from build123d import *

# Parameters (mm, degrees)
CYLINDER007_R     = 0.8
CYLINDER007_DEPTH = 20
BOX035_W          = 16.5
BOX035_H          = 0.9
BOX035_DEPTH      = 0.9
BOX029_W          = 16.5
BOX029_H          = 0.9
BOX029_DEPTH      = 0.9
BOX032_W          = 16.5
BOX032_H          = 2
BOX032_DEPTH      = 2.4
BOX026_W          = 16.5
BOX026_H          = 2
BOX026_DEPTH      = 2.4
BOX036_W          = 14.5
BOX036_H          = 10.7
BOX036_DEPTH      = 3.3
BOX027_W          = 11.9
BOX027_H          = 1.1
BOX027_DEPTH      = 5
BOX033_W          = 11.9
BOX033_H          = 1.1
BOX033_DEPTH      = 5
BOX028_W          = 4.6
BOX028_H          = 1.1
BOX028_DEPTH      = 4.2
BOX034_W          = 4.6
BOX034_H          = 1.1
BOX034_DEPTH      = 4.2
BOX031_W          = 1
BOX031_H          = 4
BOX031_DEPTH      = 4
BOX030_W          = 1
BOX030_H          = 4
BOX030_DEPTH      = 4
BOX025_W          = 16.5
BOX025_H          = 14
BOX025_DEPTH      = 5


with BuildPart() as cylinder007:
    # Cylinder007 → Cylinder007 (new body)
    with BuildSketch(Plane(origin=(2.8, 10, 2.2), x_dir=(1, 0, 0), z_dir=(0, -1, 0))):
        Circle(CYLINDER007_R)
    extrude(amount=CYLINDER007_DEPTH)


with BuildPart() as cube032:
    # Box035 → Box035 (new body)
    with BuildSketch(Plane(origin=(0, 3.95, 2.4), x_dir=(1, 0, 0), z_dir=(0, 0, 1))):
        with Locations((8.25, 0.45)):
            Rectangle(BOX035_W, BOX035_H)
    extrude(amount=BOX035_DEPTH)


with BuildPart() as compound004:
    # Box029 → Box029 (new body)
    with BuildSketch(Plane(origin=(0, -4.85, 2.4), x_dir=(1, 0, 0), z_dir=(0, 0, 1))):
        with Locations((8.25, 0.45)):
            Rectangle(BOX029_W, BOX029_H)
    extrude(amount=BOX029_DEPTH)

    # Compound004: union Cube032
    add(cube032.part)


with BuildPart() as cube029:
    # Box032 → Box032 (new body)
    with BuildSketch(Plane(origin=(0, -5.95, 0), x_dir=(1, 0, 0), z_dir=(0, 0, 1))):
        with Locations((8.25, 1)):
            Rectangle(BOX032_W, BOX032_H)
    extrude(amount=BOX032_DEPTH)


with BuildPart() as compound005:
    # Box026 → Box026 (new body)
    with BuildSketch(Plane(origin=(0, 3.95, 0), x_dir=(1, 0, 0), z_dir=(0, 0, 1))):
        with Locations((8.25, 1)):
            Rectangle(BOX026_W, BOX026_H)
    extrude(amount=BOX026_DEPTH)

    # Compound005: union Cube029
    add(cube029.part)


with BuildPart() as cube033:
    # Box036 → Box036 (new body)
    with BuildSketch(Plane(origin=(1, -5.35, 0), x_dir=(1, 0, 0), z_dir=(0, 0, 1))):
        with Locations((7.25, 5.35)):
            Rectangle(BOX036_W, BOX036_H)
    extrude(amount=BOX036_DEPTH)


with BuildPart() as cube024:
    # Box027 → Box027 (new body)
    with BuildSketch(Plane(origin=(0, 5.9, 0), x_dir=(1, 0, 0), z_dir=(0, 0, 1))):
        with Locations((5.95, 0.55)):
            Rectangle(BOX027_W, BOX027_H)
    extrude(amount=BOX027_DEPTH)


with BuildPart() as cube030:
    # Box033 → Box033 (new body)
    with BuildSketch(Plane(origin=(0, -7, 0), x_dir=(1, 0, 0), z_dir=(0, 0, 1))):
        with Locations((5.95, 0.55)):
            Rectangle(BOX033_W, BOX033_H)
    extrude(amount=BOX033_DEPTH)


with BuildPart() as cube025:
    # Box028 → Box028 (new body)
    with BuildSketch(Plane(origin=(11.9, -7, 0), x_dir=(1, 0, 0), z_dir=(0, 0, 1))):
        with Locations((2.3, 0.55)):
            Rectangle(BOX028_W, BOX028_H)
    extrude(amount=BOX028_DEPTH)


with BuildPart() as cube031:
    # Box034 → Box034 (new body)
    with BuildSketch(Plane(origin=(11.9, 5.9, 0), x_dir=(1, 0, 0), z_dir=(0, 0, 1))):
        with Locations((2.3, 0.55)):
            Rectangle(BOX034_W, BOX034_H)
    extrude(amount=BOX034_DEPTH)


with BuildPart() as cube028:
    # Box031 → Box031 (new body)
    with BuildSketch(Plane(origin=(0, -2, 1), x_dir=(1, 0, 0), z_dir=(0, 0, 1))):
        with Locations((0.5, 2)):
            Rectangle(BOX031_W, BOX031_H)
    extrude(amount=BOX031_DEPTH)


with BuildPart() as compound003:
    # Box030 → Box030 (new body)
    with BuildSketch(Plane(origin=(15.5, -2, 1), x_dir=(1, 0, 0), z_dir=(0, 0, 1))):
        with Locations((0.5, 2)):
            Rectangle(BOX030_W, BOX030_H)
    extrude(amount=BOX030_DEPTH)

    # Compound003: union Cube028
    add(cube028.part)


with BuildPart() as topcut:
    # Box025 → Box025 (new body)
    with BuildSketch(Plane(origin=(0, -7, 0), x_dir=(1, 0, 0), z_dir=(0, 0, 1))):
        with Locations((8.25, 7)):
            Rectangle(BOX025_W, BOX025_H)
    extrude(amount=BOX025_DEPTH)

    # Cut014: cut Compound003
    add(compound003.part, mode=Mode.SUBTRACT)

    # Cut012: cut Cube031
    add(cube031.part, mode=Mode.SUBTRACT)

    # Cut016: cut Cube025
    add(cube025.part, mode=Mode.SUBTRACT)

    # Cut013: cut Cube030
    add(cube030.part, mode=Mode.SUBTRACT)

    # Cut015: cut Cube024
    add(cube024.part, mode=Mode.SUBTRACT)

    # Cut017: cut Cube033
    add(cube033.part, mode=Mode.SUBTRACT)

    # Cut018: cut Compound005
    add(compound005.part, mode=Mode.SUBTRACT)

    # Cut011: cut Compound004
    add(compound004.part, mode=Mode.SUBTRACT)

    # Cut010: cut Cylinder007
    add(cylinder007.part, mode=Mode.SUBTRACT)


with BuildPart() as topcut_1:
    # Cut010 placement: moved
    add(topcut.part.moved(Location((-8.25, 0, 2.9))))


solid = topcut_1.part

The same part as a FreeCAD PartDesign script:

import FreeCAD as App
import Part
import Sketcher
from FreeCAD import Vector
Q = App.Units.Quantity

doc = App.newDocument("Part")
body = doc.addObject("PartDesign::Body", "Body")

# Sketch on XZ plane
sketch1 = body.newObject("Sketcher::SketchObject", "Sketch")
sketch1.AttachmentSupport = (doc.getObject("XZ_Plane"), [""])
sketch1.MapMode = "FlatFace"
sketch1.AttachmentOffset = App.Placement(Vector(0, 0, -10), App.Rotation())
sketch1.addGeometry(Part.Circle(Vector(2.8, 2.2, 0), Vector(0, 0, 1), 0.8), False)
sketch1.addConstraint(Sketcher.Constraint("Diameter", 0, Q("1.6 mm")))
sketch1.addConstraint(Sketcher.Constraint("DistanceX", -1, 1, 0, 3, Q("2.8 mm")))
sketch1.addConstraint(Sketcher.Constraint("DistanceY", -1, 1, 0, 3, Q("2.2 mm")))
pad1 = body.newObject("PartDesign::Pad", "Pad")
pad1.Profile = sketch1
pad1.Length = 20
body2 = doc.addObject("PartDesign::Body", "Body001")

# Sketch on XY plane
sketch2 = body2.newObject("Sketcher::SketchObject", "Sketch001")
sketch2.AttachmentSupport = (doc.getObject("XY_Plane001"), [""])
sketch2.MapMode = "FlatFace"
sketch2.AttachmentOffset = App.Placement(Vector(0, 0, 2.4), App.Rotation())
sketch2.addGeometry(Part.LineSegment(Vector(0, 4.85, 0), Vector(0, 3.95, 0)), False)
sketch2.addGeometry(Part.LineSegment(Vector(0, 3.95, 0), Vector(16.5, 3.95, 0)), False)
sketch2.addGeometry(Part.LineSegment(Vector(16.5, 3.95, 0), Vector(16.5, 4.85, 0)), False)
sketch2.addGeometry(Part.LineSegment(Vector(16.5, 4.85, 0), Vector(0, 4.85, 0)), False)
sketch2.addConstraint(Sketcher.Constraint("Coincident", 0, 2, 1, 1))
sketch2.addConstraint(Sketcher.Constraint("Coincident", 1, 2, 2, 1))
sketch2.addConstraint(Sketcher.Constraint("Coincident", 2, 2, 3, 1))
sketch2.addConstraint(Sketcher.Constraint("Coincident", 3, 2, 0, 1))
sketch2.addConstraint(Sketcher.Constraint("Vertical", 0))
sketch2.addConstraint(Sketcher.Constraint("Horizontal", 1))
sketch2.addConstraint(Sketcher.Constraint("Vertical", 2))
sketch2.addConstraint(Sketcher.Constraint("Horizontal", 3))
sketch2.addConstraint(Sketcher.Constraint("PointOnObject", 0, 2, -2))
sketch2.addConstraint(Sketcher.Constraint("DistanceX", 1, 1, 1, 2, Q("16.5 mm")))
sketch2.addConstraint(Sketcher.Constraint("DistanceY", 0, 2, 0, 1, Q("0.9 mm")))
sketch2.addConstraint(Sketcher.Constraint("DistanceY", -1, 1, 0, 2, Q("3.95 mm")))
pad2 = body2.newObject("PartDesign::Pad", "Pad001")
pad2.Profile = sketch2
pad2.Length = 0.9
body3 = doc.addObject("PartDesign::Body", "Body002")
body3.AllowCompound = True

# Sketch on XY plane
sketch3 = body3.newObject("Sketcher::SketchObject", "Sketch002")
sketch3.AttachmentSupport = (doc.getObject("XY_Plane002"), [""])
sketch3.MapMode = "FlatFace"
sketch3.AttachmentOffset = App.Placement(Vector(0, 0, 2.4), App.Rotation())
sketch3.addGeometry(Part.LineSegment(Vector(0, -3.95, 0), Vector(0, -4.85, 0)), False)
sketch3.addGeometry(Part.LineSegment(Vector(0, -4.85, 0), Vector(16.5, -4.85, 0)), False)
sketch3.addGeometry(Part.LineSegment(Vector(16.5, -4.85, 0), Vector(16.5, -3.95, 0)), False)
sketch3.addGeometry(Part.LineSegment(Vector(16.5, -3.95, 0), Vector(0, -3.95, 0)), False)
sketch3.addConstraint(Sketcher.Constraint("Coincident", 0, 2, 1, 1))
sketch3.addConstraint(Sketcher.Constraint("Coincident", 1, 2, 2, 1))
sketch3.addConstraint(Sketcher.Constraint("Coincident", 2, 2, 3, 1))
sketch3.addConstraint(Sketcher.Constraint("Coincident", 3, 2, 0, 1))
sketch3.addConstraint(Sketcher.Constraint("Vertical", 0))
sketch3.addConstraint(Sketcher.Constraint("Horizontal", 1))
sketch3.addConstraint(Sketcher.Constraint("Vertical", 2))
sketch3.addConstraint(Sketcher.Constraint("Horizontal", 3))
sketch3.addConstraint(Sketcher.Constraint("PointOnObject", 0, 2, -2))
sketch3.addConstraint(Sketcher.Constraint("DistanceX", 1, 1, 1, 2, Q("16.5 mm")))
sketch3.addConstraint(Sketcher.Constraint("DistanceY", 0, 2, 0, 1, Q("0.9 mm")))
sketch3.addConstraint(Sketcher.Constraint("DistanceY", 0, 2, -1, 1, Q("4.85 mm")))
pad3 = body3.newObject("PartDesign::Pad", "Pad002")
pad3.Profile = sketch3
pad3.Length = 0.9
doc.recompute()

boolean = body3.newObject("PartDesign::Boolean", "Boolean")
boolean.Type = "Fuse"
boolean.addObjects([body2])
body4 = doc.addObject("PartDesign::Body", "Body003")

# Sketch on XY plane
sketch4 = body4.newObject("Sketcher::SketchObject", "Sketch003")
sketch4.AttachmentSupport = (doc.getObject("XY_Plane003"), [""])
sketch4.MapMode = "FlatFace"
sketch4.addGeometry(Part.LineSegment(Vector(0, -3.95, 0), Vector(0, -5.95, 0)), False)
sketch4.addGeometry(Part.LineSegment(Vector(0, -5.95, 0), Vector(16.5, -5.95, 0)), False)
sketch4.addGeometry(Part.LineSegment(Vector(16.5, -5.95, 0), Vector(16.5, -3.95, 0)), False)
sketch4.addGeometry(Part.LineSegment(Vector(16.5, -3.95, 0), Vector(0, -3.95, 0)), False)
sketch4.addConstraint(Sketcher.Constraint("Coincident", 0, 2, 1, 1))
sketch4.addConstraint(Sketcher.Constraint("Coincident", 1, 2, 2, 1))
sketch4.addConstraint(Sketcher.Constraint("Coincident", 2, 2, 3, 1))
sketch4.addConstraint(Sketcher.Constraint("Coincident", 3, 2, 0, 1))
sketch4.addConstraint(Sketcher.Constraint("Vertical", 0))
sketch4.addConstraint(Sketcher.Constraint("Horizontal", 1))
sketch4.addConstraint(Sketcher.Constraint("Vertical", 2))
sketch4.addConstraint(Sketcher.Constraint("Horizontal", 3))
sketch4.addConstraint(Sketcher.Constraint("PointOnObject", 0, 2, -2))
sketch4.addConstraint(Sketcher.Constraint("DistanceY", 0, 2, 0, 1, Q("2 mm")))
sketch4.addConstraint(Sketcher.Constraint("DistanceX", 1, 1, 1, 2, Q("16.5 mm")))
sketch4.addConstraint(Sketcher.Constraint("DistanceY", 0, 2, -1, 1, Q("5.95 mm")))
pad4 = body4.newObject("PartDesign::Pad", "Pad003")
pad4.Profile = sketch4
pad4.Length = 2.4
body5 = doc.addObject("PartDesign::Body", "Body004")
body5.AllowCompound = True

# Sketch on XY plane
sketch5 = body5.newObject("Sketcher::SketchObject", "Sketch004")
sketch5.AttachmentSupport = (doc.getObject("XY_Plane004"), [""])
sketch5.MapMode = "FlatFace"
sketch5.addGeometry(Part.LineSegment(Vector(0, 5.95, 0), Vector(0, 3.95, 0)), False)
sketch5.addGeometry(Part.LineSegment(Vector(0, 3.95, 0), Vector(16.5, 3.95, 0)), False)
sketch5.addGeometry(Part.LineSegment(Vector(16.5, 3.95, 0), Vector(16.5, 5.95, 0)), False)
sketch5.addGeometry(Part.LineSegment(Vector(16.5, 5.95, 0), Vector(0, 5.95, 0)), False)
sketch5.addConstraint(Sketcher.Constraint("Coincident", 0, 2, 1, 1))
sketch5.addConstraint(Sketcher.Constraint("Coincident", 1, 2, 2, 1))
sketch5.addConstraint(Sketcher.Constraint("Coincident", 2, 2, 3, 1))
sketch5.addConstraint(Sketcher.Constraint("Coincident", 3, 2, 0, 1))
sketch5.addConstraint(Sketcher.Constraint("Vertical", 0))
sketch5.addConstraint(Sketcher.Constraint("Horizontal", 1))
sketch5.addConstraint(Sketcher.Constraint("Vertical", 2))
sketch5.addConstraint(Sketcher.Constraint("Horizontal", 3))
sketch5.addConstraint(Sketcher.Constraint("PointOnObject", 0, 2, -2))
sketch5.addConstraint(Sketcher.Constraint("DistanceY", 0, 2, 0, 1, Q("2 mm")))
sketch5.addConstraint(Sketcher.Constraint("DistanceX", 1, 1, 1, 2, Q("16.5 mm")))
sketch5.addConstraint(Sketcher.Constraint("DistanceY", -1, 1, 0, 2, Q("3.95 mm")))
pad5 = body5.newObject("PartDesign::Pad", "Pad004")
pad5.Profile = sketch5
pad5.Length = 2.4
doc.recompute()

boolean2 = body5.newObject("PartDesign::Boolean", "Boolean001")
boolean2.Type = "Fuse"
boolean2.addObjects([body4])
body6 = doc.addObject("PartDesign::Body", "Body005")

# Sketch on XY plane
sketch6 = body6.newObject("Sketcher::SketchObject", "Sketch005")
sketch6.AttachmentSupport = (doc.getObject("XY_Plane005"), [""])
sketch6.MapMode = "FlatFace"
sketch6.addGeometry(Part.LineSegment(Vector(1, 5.35, 0), Vector(1, -5.35, 0)), False)
sketch6.addGeometry(Part.LineSegment(Vector(1, -5.35, 0), Vector(15.5, -5.35, 0)), False)
sketch6.addGeometry(Part.LineSegment(Vector(15.5, -5.35, 0), Vector(15.5, 5.35, 0)), False)
sketch6.addGeometry(Part.LineSegment(Vector(15.5, 5.35, 0), Vector(1, 5.35, 0)), False)
sketch6.addConstraint(Sketcher.Constraint("Coincident", 0, 2, 1, 1))
sketch6.addConstraint(Sketcher.Constraint("Coincident", 1, 2, 2, 1))
sketch6.addConstraint(Sketcher.Constraint("Coincident", 2, 2, 3, 1))
sketch6.addConstraint(Sketcher.Constraint("Coincident", 3, 2, 0, 1))
sketch6.addConstraint(Sketcher.Constraint("Vertical", 0))
sketch6.addConstraint(Sketcher.Constraint("Horizontal", 1))
sketch6.addConstraint(Sketcher.Constraint("Vertical", 2))
sketch6.addConstraint(Sketcher.Constraint("Horizontal", 3))
sketch6.addConstraint(Sketcher.Constraint("DistanceX", 1, 1, 1, 2, Q("14.5 mm")))
sketch6.addConstraint(Sketcher.Constraint("DistanceY", 0, 2, 0, 1, Q("10.7 mm")))
sketch6.addConstraint(Sketcher.Constraint("DistanceX", -1, 1, 0, 2, Q("1 mm")))
sketch6.addConstraint(Sketcher.Constraint("DistanceY", 0, 2, -1, 1, Q("5.35 mm")))
pad6 = body6.newObject("PartDesign::Pad", "Pad005")
pad6.Profile = sketch6
pad6.Length = 3.3
body7 = doc.addObject("PartDesign::Body", "Body006")

# Sketch on XY plane
sketch7 = body7.newObject("Sketcher::SketchObject", "Sketch006")
sketch7.AttachmentSupport = (doc.getObject("XY_Plane006"), [""])
sketch7.MapMode = "FlatFace"
sketch7.addGeometry(Part.LineSegment(Vector(0, 7, 0), Vector(0, 5.9, 0)), False)
sketch7.addGeometry(Part.LineSegment(Vector(0, 5.9, 0), Vector(11.9, 5.9, 0)), False)
sketch7.addGeometry(Part.LineSegment(Vector(11.9, 5.9, 0), Vector(11.9, 7, 0)), False)
sketch7.addGeometry(Part.LineSegment(Vector(11.9, 7, 0), Vector(0, 7, 0)), False)
sketch7.addConstraint(Sketcher.Constraint("Coincident", 0, 2, 1, 1))
sketch7.addConstraint(Sketcher.Constraint("Coincident", 1, 2, 2, 1))
sketch7.addConstraint(Sketcher.Constraint("Coincident", 2, 2, 3, 1))
sketch7.addConstraint(Sketcher.Constraint("Coincident", 3, 2, 0, 1))
sketch7.addConstraint(Sketcher.Constraint("Vertical", 0))
sketch7.addConstraint(Sketcher.Constraint("Horizontal", 1))
sketch7.addConstraint(Sketcher.Constraint("Vertical", 2))
sketch7.addConstraint(Sketcher.Constraint("Horizontal", 3))
sketch7.addConstraint(Sketcher.Constraint("PointOnObject", 0, 2, -2))
sketch7.addConstraint(Sketcher.Constraint("DistanceX", 1, 1, 1, 2, Q("11.9 mm")))
sketch7.addConstraint(Sketcher.Constraint("DistanceY", 0, 2, 0, 1, Q("1.1 mm")))
sketch7.addConstraint(Sketcher.Constraint("DistanceY", -1, 1, 2, 2, Q("7 mm")))
pad7 = body7.newObject("PartDesign::Pad", "Pad006")
pad7.Profile = sketch7
pad7.Length = 5
body8 = doc.addObject("PartDesign::Body", "Body007")

# Sketch on XY plane
sketch8 = body8.newObject("Sketcher::SketchObject", "Sketch007")
sketch8.AttachmentSupport = (doc.getObject("XY_Plane007"), [""])
sketch8.MapMode = "FlatFace"
sketch8.addGeometry(Part.LineSegment(Vector(0, -5.9, 0), Vector(0, -7, 0)), False)
sketch8.addGeometry(Part.LineSegment(Vector(0, -7, 0), Vector(11.9, -7, 0)), False)
sketch8.addGeometry(Part.LineSegment(Vector(11.9, -7, 0), Vector(11.9, -5.9, 0)), False)
sketch8.addGeometry(Part.LineSegment(Vector(11.9, -5.9, 0), Vector(0, -5.9, 0)), False)
sketch8.addConstraint(Sketcher.Constraint("Coincident", 0, 2, 1, 1))
sketch8.addConstraint(Sketcher.Constraint("Coincident", 1, 2, 2, 1))
sketch8.addConstraint(Sketcher.Constraint("Coincident", 2, 2, 3, 1))
sketch8.addConstraint(Sketcher.Constraint("Coincident", 3, 2, 0, 1))
sketch8.addConstraint(Sketcher.Constraint("Vertical", 0))
sketch8.addConstraint(Sketcher.Constraint("Horizontal", 1))
sketch8.addConstraint(Sketcher.Constraint("Vertical", 2))
sketch8.addConstraint(Sketcher.Constraint("Horizontal", 3))
sketch8.addConstraint(Sketcher.Constraint("PointOnObject", 0, 2, -2))
sketch8.addConstraint(Sketcher.Constraint("DistanceX", 1, 1, 1, 2, Q("11.9 mm")))
sketch8.addConstraint(Sketcher.Constraint("DistanceY", 0, 2, 0, 1, Q("1.1 mm")))
sketch8.addConstraint(Sketcher.Constraint("DistanceY", 0, 2, -1, 1, Q("7 mm")))
pad8 = body8.newObject("PartDesign::Pad", "Pad007")
pad8.Profile = sketch8
pad8.Length = 5
body9 = doc.addObject("PartDesign::Body", "Body008")

# Sketch on XY plane
sketch9 = body9.newObject("Sketcher::SketchObject", "Sketch008")
sketch9.AttachmentSupport = (doc.getObject("XY_Plane008"), [""])
sketch9.MapMode = "FlatFace"
sketch9.addGeometry(Part.LineSegment(Vector(11.9, -5.9, 0), Vector(11.9, -7, 0)), False)
sketch9.addGeometry(Part.LineSegment(Vector(11.9, -7, 0), Vector(16.5, -7, 0)), False)
sketch9.addGeometry(Part.LineSegment(Vector(16.5, -7, 0), Vector(16.5, -5.9, 0)), False)
sketch9.addGeometry(Part.LineSegment(Vector(16.5, -5.9, 0), Vector(11.9, -5.9, 0)), False)
sketch9.addConstraint(Sketcher.Constraint("Coincident", 0, 2, 1, 1))
sketch9.addConstraint(Sketcher.Constraint("Coincident", 1, 2, 2, 1))
sketch9.addConstraint(Sketcher.Constraint("Coincident", 2, 2, 3, 1))
sketch9.addConstraint(Sketcher.Constraint("Coincident", 3, 2, 0, 1))
sketch9.addConstraint(Sketcher.Constraint("Vertical", 0))
sketch9.addConstraint(Sketcher.Constraint("Horizontal", 1))
sketch9.addConstraint(Sketcher.Constraint("Vertical", 2))
sketch9.addConstraint(Sketcher.Constraint("Horizontal", 3))
sketch9.addConstraint(Sketcher.Constraint("DistanceX", 1, 1, 1, 2, Q("4.6 mm")))
sketch9.addConstraint(Sketcher.Constraint("DistanceY", 0, 2, 0, 1, Q("1.1 mm")))
sketch9.addConstraint(Sketcher.Constraint("DistanceY", 0, 2, -1, 1, Q("7 mm")))
sketch9.addConstraint(Sketcher.Constraint("DistanceX", -1, 1, 0, 2, Q("11.9 mm")))
pad9 = body9.newObject("PartDesign::Pad", "Pad008")
pad9.Profile = sketch9
pad9.Length = 4.2
body10 = doc.addObject("PartDesign::Body", "Body009")

# Sketch on XY plane
sketch10 = body10.newObject("Sketcher::SketchObject", "Sketch009")
sketch10.AttachmentSupport = (doc.getObject("XY_Plane009"), [""])
sketch10.MapMode = "FlatFace"
sketch10.addGeometry(Part.LineSegment(Vector(11.9, 7, 0), Vector(11.9, 5.9, 0)), False)
sketch10.addGeometry(Part.LineSegment(Vector(11.9, 5.9, 0), Vector(16.5, 5.9, 0)), False)
sketch10.addGeometry(Part.LineSegment(Vector(16.5, 5.9, 0), Vector(16.5, 7, 0)), False)
sketch10.addGeometry(Part.LineSegment(Vector(16.5, 7, 0), Vector(11.9, 7, 0)), False)
sketch10.addConstraint(Sketcher.Constraint("Coincident", 0, 2, 1, 1))
sketch10.addConstraint(Sketcher.Constraint("Coincident", 1, 2, 2, 1))
sketch10.addConstraint(Sketcher.Constraint("Coincident", 2, 2, 3, 1))
sketch10.addConstraint(Sketcher.Constraint("Coincident", 3, 2, 0, 1))
sketch10.addConstraint(Sketcher.Constraint("Vertical", 0))
sketch10.addConstraint(Sketcher.Constraint("Horizontal", 1))
sketch10.addConstraint(Sketcher.Constraint("Vertical", 2))
sketch10.addConstraint(Sketcher.Constraint("Horizontal", 3))
sketch10.addConstraint(Sketcher.Constraint("DistanceX", 1, 1, 1, 2, Q("4.6 mm")))
sketch10.addConstraint(Sketcher.Constraint("DistanceY", 0, 2, 0, 1, Q("1.1 mm")))
sketch10.addConstraint(Sketcher.Constraint("DistanceY", -1, 1, 2, 2, Q("7 mm")))
sketch10.addConstraint(Sketcher.Constraint("DistanceX", -1, 1, 0, 2, Q("11.9 mm")))
pad10 = body10.newObject("PartDesign::Pad", "Pad009")
pad10.Profile = sketch10
pad10.Length = 4.2
body11 = doc.addObject("PartDesign::Body", "Body010")

# Sketch on XY plane
sketch11 = body11.newObject("Sketcher::SketchObject", "Sketch010")
sketch11.AttachmentSupport = (doc.getObject("XY_Plane010"), [""])
sketch11.MapMode = "FlatFace"
sketch11.AttachmentOffset = App.Placement(Vector(0, 0, 1), App.Rotation())
sketch11.addGeometry(Part.LineSegment(Vector(0, 2, 0), Vector(0, -2, 0)), False)
sketch11.addGeometry(Part.LineSegment(Vector(0, -2, 0), Vector(1, -2, 0)), False)
sketch11.addGeometry(Part.LineSegment(Vector(1, -2, 0), Vector(1, 2, 0)), False)
sketch11.addGeometry(Part.LineSegment(Vector(1, 2, 0), Vector(0, 2, 0)), False)
sketch11.addConstraint(Sketcher.Constraint("Coincident", 0, 2, 1, 1))
sketch11.addConstraint(Sketcher.Constraint("Coincident", 1, 2, 2, 1))
sketch11.addConstraint(Sketcher.Constraint("Coincident", 2, 2, 3, 1))
sketch11.addConstraint(Sketcher.Constraint("Coincident", 3, 2, 0, 1))
sketch11.addConstraint(Sketcher.Constraint("Vertical", 0))
sketch11.addConstraint(Sketcher.Constraint("Horizontal", 1))
sketch11.addConstraint(Sketcher.Constraint("Vertical", 2))
sketch11.addConstraint(Sketcher.Constraint("Horizontal", 3))
sketch11.addConstraint(Sketcher.Constraint("Symmetric", 0, 2, 3, 2, -1, 1))
sketch11.addConstraint(Sketcher.Constraint("DistanceX", 1, 1, 1, 2, Q("1 mm")))
sketch11.addConstraint(Sketcher.Constraint("DistanceY", 0, 2, 0, 1, Q("4 mm")))
pad11 = body11.newObject("PartDesign::Pad", "Pad010")
pad11.Profile = sketch11
pad11.Length = 4
body12 = doc.addObject("PartDesign::Body", "Body011")
body12.AllowCompound = True

# Sketch on XY plane
sketch12 = body12.newObject("Sketcher::SketchObject", "Sketch011")
sketch12.AttachmentSupport = (doc.getObject("XY_Plane011"), [""])
sketch12.MapMode = "FlatFace"
sketch12.AttachmentOffset = App.Placement(Vector(0, 0, 1), App.Rotation())
sketch12.addGeometry(Part.LineSegment(Vector(15.5, 2, 0), Vector(15.5, -2, 0)), False)
sketch12.addGeometry(Part.LineSegment(Vector(15.5, -2, 0), Vector(16.5, -2, 0)), False)
sketch12.addGeometry(Part.LineSegment(Vector(16.5, -2, 0), Vector(16.5, 2, 0)), False)
sketch12.addGeometry(Part.LineSegment(Vector(16.5, 2, 0), Vector(15.5, 2, 0)), False)
sketch12.addConstraint(Sketcher.Constraint("Coincident", 0, 2, 1, 1))
sketch12.addConstraint(Sketcher.Constraint("Coincident", 1, 2, 2, 1))
sketch12.addConstraint(Sketcher.Constraint("Coincident", 2, 2, 3, 1))
sketch12.addConstraint(Sketcher.Constraint("Coincident", 3, 2, 0, 1))
sketch12.addConstraint(Sketcher.Constraint("Vertical", 0))
sketch12.addConstraint(Sketcher.Constraint("Horizontal", 1))
sketch12.addConstraint(Sketcher.Constraint("Vertical", 2))
sketch12.addConstraint(Sketcher.Constraint("Horizontal", 3))
sketch12.addConstraint(Sketcher.Constraint("DistanceX", 1, 1, 1, 2, Q("1 mm")))
sketch12.addConstraint(Sketcher.Constraint("DistanceY", 0, 2, 0, 1, Q("4 mm")))
sketch12.addConstraint(Sketcher.Constraint("DistanceY", 0, 2, -1, 1, Q("2 mm")))
sketch12.addConstraint(Sketcher.Constraint("DistanceX", -1, 1, 0, 2, Q("15.5 mm")))
pad12 = body12.newObject("PartDesign::Pad", "Pad011")
pad12.Profile = sketch12
pad12.Length = 4
doc.recompute()

boolean3 = body12.newObject("PartDesign::Boolean", "Boolean002")
boolean3.Type = "Fuse"
boolean3.addObjects([body11])
body13 = doc.addObject("PartDesign::Body", "Body012")

# Sketch on XY plane
sketch13 = body13.newObject("Sketcher::SketchObject", "Sketch012")
sketch13.AttachmentSupport = (doc.getObject("XY_Plane012"), [""])
sketch13.MapMode = "FlatFace"
sketch13.addGeometry(Part.LineSegment(Vector(0, 7, 0), Vector(0, -7, 0)), False)
sketch13.addGeometry(Part.LineSegment(Vector(0, -7, 0), Vector(16.5, -7, 0)), False)
sketch13.addGeometry(Part.LineSegment(Vector(16.5, -7, 0), Vector(16.5, 7, 0)), False)
sketch13.addGeometry(Part.LineSegment(Vector(16.5, 7, 0), Vector(0, 7, 0)), False)
sketch13.addConstraint(Sketcher.Constraint("Coincident", 0, 2, 1, 1))
sketch13.addConstraint(Sketcher.Constraint("Coincident", 1, 2, 2, 1))
sketch13.addConstraint(Sketcher.Constraint("Coincident", 2, 2, 3, 1))
sketch13.addConstraint(Sketcher.Constraint("Coincident", 3, 2, 0, 1))
sketch13.addConstraint(Sketcher.Constraint("Vertical", 0))
sketch13.addConstraint(Sketcher.Constraint("Horizontal", 1))
sketch13.addConstraint(Sketcher.Constraint("Vertical", 2))
sketch13.addConstraint(Sketcher.Constraint("Horizontal", 3))
sketch13.addConstraint(Sketcher.Constraint("Symmetric", 0, 2, 3, 2, -1, 1))
sketch13.addConstraint(Sketcher.Constraint("DistanceY", 0, 2, 0, 1, Q("14 mm")))
sketch13.addConstraint(Sketcher.Constraint("DistanceX", 1, 1, 1, 2, Q("16.5 mm")))
pad13 = body13.newObject("PartDesign::Pad", "Pad012")
pad13.Profile = sketch13
pad13.Length = 5
doc.recompute()

boolean4 = body13.newObject("PartDesign::Boolean", "Boolean003")
boolean4.Type = "Cut"
boolean4.addObjects([body12])
doc.recompute()

boolean5 = body13.newObject("PartDesign::Boolean", "Boolean004")
boolean5.Type = "Cut"
boolean5.addObjects([body10])
doc.recompute()

boolean6 = body13.newObject("PartDesign::Boolean", "Boolean005")
boolean6.Type = "Cut"
boolean6.addObjects([body9])
doc.recompute()

boolean7 = body13.newObject("PartDesign::Boolean", "Boolean006")
boolean7.Type = "Cut"
boolean7.addObjects([body8])
doc.recompute()

boolean8 = body13.newObject("PartDesign::Boolean", "Boolean007")
boolean8.Type = "Cut"
boolean8.addObjects([body7])
doc.recompute()

boolean9 = body13.newObject("PartDesign::Boolean", "Boolean008")
boolean9.Type = "Cut"
boolean9.addObjects([body6])
doc.recompute()

boolean10 = body13.newObject("PartDesign::Boolean", "Boolean009")
boolean10.Type = "Cut"
boolean10.addObjects([body5])
doc.recompute()

boolean11 = body13.newObject("PartDesign::Boolean", "Boolean010")
boolean11.Type = "Cut"
boolean11.addObjects([body3])
doc.recompute()

boolean12 = body13.newObject("PartDesign::Boolean", "Boolean011")
boolean12.Type = "Cut"
boolean12.addObjects([body])
body14 = doc.addObject("PartDesign::Body", "Body013")
doc.recompute()

body13.Placement = App.Placement(Vector(-8.25, 0, 2.9), App.Rotation(Vector(0, 0, 1), 0))
boolean13 = body14.newObject("PartDesign::Boolean", "Boolean012")
boolean13.Type = "Fuse"
boolean13.addObjects([body13])

doc.recompute()
